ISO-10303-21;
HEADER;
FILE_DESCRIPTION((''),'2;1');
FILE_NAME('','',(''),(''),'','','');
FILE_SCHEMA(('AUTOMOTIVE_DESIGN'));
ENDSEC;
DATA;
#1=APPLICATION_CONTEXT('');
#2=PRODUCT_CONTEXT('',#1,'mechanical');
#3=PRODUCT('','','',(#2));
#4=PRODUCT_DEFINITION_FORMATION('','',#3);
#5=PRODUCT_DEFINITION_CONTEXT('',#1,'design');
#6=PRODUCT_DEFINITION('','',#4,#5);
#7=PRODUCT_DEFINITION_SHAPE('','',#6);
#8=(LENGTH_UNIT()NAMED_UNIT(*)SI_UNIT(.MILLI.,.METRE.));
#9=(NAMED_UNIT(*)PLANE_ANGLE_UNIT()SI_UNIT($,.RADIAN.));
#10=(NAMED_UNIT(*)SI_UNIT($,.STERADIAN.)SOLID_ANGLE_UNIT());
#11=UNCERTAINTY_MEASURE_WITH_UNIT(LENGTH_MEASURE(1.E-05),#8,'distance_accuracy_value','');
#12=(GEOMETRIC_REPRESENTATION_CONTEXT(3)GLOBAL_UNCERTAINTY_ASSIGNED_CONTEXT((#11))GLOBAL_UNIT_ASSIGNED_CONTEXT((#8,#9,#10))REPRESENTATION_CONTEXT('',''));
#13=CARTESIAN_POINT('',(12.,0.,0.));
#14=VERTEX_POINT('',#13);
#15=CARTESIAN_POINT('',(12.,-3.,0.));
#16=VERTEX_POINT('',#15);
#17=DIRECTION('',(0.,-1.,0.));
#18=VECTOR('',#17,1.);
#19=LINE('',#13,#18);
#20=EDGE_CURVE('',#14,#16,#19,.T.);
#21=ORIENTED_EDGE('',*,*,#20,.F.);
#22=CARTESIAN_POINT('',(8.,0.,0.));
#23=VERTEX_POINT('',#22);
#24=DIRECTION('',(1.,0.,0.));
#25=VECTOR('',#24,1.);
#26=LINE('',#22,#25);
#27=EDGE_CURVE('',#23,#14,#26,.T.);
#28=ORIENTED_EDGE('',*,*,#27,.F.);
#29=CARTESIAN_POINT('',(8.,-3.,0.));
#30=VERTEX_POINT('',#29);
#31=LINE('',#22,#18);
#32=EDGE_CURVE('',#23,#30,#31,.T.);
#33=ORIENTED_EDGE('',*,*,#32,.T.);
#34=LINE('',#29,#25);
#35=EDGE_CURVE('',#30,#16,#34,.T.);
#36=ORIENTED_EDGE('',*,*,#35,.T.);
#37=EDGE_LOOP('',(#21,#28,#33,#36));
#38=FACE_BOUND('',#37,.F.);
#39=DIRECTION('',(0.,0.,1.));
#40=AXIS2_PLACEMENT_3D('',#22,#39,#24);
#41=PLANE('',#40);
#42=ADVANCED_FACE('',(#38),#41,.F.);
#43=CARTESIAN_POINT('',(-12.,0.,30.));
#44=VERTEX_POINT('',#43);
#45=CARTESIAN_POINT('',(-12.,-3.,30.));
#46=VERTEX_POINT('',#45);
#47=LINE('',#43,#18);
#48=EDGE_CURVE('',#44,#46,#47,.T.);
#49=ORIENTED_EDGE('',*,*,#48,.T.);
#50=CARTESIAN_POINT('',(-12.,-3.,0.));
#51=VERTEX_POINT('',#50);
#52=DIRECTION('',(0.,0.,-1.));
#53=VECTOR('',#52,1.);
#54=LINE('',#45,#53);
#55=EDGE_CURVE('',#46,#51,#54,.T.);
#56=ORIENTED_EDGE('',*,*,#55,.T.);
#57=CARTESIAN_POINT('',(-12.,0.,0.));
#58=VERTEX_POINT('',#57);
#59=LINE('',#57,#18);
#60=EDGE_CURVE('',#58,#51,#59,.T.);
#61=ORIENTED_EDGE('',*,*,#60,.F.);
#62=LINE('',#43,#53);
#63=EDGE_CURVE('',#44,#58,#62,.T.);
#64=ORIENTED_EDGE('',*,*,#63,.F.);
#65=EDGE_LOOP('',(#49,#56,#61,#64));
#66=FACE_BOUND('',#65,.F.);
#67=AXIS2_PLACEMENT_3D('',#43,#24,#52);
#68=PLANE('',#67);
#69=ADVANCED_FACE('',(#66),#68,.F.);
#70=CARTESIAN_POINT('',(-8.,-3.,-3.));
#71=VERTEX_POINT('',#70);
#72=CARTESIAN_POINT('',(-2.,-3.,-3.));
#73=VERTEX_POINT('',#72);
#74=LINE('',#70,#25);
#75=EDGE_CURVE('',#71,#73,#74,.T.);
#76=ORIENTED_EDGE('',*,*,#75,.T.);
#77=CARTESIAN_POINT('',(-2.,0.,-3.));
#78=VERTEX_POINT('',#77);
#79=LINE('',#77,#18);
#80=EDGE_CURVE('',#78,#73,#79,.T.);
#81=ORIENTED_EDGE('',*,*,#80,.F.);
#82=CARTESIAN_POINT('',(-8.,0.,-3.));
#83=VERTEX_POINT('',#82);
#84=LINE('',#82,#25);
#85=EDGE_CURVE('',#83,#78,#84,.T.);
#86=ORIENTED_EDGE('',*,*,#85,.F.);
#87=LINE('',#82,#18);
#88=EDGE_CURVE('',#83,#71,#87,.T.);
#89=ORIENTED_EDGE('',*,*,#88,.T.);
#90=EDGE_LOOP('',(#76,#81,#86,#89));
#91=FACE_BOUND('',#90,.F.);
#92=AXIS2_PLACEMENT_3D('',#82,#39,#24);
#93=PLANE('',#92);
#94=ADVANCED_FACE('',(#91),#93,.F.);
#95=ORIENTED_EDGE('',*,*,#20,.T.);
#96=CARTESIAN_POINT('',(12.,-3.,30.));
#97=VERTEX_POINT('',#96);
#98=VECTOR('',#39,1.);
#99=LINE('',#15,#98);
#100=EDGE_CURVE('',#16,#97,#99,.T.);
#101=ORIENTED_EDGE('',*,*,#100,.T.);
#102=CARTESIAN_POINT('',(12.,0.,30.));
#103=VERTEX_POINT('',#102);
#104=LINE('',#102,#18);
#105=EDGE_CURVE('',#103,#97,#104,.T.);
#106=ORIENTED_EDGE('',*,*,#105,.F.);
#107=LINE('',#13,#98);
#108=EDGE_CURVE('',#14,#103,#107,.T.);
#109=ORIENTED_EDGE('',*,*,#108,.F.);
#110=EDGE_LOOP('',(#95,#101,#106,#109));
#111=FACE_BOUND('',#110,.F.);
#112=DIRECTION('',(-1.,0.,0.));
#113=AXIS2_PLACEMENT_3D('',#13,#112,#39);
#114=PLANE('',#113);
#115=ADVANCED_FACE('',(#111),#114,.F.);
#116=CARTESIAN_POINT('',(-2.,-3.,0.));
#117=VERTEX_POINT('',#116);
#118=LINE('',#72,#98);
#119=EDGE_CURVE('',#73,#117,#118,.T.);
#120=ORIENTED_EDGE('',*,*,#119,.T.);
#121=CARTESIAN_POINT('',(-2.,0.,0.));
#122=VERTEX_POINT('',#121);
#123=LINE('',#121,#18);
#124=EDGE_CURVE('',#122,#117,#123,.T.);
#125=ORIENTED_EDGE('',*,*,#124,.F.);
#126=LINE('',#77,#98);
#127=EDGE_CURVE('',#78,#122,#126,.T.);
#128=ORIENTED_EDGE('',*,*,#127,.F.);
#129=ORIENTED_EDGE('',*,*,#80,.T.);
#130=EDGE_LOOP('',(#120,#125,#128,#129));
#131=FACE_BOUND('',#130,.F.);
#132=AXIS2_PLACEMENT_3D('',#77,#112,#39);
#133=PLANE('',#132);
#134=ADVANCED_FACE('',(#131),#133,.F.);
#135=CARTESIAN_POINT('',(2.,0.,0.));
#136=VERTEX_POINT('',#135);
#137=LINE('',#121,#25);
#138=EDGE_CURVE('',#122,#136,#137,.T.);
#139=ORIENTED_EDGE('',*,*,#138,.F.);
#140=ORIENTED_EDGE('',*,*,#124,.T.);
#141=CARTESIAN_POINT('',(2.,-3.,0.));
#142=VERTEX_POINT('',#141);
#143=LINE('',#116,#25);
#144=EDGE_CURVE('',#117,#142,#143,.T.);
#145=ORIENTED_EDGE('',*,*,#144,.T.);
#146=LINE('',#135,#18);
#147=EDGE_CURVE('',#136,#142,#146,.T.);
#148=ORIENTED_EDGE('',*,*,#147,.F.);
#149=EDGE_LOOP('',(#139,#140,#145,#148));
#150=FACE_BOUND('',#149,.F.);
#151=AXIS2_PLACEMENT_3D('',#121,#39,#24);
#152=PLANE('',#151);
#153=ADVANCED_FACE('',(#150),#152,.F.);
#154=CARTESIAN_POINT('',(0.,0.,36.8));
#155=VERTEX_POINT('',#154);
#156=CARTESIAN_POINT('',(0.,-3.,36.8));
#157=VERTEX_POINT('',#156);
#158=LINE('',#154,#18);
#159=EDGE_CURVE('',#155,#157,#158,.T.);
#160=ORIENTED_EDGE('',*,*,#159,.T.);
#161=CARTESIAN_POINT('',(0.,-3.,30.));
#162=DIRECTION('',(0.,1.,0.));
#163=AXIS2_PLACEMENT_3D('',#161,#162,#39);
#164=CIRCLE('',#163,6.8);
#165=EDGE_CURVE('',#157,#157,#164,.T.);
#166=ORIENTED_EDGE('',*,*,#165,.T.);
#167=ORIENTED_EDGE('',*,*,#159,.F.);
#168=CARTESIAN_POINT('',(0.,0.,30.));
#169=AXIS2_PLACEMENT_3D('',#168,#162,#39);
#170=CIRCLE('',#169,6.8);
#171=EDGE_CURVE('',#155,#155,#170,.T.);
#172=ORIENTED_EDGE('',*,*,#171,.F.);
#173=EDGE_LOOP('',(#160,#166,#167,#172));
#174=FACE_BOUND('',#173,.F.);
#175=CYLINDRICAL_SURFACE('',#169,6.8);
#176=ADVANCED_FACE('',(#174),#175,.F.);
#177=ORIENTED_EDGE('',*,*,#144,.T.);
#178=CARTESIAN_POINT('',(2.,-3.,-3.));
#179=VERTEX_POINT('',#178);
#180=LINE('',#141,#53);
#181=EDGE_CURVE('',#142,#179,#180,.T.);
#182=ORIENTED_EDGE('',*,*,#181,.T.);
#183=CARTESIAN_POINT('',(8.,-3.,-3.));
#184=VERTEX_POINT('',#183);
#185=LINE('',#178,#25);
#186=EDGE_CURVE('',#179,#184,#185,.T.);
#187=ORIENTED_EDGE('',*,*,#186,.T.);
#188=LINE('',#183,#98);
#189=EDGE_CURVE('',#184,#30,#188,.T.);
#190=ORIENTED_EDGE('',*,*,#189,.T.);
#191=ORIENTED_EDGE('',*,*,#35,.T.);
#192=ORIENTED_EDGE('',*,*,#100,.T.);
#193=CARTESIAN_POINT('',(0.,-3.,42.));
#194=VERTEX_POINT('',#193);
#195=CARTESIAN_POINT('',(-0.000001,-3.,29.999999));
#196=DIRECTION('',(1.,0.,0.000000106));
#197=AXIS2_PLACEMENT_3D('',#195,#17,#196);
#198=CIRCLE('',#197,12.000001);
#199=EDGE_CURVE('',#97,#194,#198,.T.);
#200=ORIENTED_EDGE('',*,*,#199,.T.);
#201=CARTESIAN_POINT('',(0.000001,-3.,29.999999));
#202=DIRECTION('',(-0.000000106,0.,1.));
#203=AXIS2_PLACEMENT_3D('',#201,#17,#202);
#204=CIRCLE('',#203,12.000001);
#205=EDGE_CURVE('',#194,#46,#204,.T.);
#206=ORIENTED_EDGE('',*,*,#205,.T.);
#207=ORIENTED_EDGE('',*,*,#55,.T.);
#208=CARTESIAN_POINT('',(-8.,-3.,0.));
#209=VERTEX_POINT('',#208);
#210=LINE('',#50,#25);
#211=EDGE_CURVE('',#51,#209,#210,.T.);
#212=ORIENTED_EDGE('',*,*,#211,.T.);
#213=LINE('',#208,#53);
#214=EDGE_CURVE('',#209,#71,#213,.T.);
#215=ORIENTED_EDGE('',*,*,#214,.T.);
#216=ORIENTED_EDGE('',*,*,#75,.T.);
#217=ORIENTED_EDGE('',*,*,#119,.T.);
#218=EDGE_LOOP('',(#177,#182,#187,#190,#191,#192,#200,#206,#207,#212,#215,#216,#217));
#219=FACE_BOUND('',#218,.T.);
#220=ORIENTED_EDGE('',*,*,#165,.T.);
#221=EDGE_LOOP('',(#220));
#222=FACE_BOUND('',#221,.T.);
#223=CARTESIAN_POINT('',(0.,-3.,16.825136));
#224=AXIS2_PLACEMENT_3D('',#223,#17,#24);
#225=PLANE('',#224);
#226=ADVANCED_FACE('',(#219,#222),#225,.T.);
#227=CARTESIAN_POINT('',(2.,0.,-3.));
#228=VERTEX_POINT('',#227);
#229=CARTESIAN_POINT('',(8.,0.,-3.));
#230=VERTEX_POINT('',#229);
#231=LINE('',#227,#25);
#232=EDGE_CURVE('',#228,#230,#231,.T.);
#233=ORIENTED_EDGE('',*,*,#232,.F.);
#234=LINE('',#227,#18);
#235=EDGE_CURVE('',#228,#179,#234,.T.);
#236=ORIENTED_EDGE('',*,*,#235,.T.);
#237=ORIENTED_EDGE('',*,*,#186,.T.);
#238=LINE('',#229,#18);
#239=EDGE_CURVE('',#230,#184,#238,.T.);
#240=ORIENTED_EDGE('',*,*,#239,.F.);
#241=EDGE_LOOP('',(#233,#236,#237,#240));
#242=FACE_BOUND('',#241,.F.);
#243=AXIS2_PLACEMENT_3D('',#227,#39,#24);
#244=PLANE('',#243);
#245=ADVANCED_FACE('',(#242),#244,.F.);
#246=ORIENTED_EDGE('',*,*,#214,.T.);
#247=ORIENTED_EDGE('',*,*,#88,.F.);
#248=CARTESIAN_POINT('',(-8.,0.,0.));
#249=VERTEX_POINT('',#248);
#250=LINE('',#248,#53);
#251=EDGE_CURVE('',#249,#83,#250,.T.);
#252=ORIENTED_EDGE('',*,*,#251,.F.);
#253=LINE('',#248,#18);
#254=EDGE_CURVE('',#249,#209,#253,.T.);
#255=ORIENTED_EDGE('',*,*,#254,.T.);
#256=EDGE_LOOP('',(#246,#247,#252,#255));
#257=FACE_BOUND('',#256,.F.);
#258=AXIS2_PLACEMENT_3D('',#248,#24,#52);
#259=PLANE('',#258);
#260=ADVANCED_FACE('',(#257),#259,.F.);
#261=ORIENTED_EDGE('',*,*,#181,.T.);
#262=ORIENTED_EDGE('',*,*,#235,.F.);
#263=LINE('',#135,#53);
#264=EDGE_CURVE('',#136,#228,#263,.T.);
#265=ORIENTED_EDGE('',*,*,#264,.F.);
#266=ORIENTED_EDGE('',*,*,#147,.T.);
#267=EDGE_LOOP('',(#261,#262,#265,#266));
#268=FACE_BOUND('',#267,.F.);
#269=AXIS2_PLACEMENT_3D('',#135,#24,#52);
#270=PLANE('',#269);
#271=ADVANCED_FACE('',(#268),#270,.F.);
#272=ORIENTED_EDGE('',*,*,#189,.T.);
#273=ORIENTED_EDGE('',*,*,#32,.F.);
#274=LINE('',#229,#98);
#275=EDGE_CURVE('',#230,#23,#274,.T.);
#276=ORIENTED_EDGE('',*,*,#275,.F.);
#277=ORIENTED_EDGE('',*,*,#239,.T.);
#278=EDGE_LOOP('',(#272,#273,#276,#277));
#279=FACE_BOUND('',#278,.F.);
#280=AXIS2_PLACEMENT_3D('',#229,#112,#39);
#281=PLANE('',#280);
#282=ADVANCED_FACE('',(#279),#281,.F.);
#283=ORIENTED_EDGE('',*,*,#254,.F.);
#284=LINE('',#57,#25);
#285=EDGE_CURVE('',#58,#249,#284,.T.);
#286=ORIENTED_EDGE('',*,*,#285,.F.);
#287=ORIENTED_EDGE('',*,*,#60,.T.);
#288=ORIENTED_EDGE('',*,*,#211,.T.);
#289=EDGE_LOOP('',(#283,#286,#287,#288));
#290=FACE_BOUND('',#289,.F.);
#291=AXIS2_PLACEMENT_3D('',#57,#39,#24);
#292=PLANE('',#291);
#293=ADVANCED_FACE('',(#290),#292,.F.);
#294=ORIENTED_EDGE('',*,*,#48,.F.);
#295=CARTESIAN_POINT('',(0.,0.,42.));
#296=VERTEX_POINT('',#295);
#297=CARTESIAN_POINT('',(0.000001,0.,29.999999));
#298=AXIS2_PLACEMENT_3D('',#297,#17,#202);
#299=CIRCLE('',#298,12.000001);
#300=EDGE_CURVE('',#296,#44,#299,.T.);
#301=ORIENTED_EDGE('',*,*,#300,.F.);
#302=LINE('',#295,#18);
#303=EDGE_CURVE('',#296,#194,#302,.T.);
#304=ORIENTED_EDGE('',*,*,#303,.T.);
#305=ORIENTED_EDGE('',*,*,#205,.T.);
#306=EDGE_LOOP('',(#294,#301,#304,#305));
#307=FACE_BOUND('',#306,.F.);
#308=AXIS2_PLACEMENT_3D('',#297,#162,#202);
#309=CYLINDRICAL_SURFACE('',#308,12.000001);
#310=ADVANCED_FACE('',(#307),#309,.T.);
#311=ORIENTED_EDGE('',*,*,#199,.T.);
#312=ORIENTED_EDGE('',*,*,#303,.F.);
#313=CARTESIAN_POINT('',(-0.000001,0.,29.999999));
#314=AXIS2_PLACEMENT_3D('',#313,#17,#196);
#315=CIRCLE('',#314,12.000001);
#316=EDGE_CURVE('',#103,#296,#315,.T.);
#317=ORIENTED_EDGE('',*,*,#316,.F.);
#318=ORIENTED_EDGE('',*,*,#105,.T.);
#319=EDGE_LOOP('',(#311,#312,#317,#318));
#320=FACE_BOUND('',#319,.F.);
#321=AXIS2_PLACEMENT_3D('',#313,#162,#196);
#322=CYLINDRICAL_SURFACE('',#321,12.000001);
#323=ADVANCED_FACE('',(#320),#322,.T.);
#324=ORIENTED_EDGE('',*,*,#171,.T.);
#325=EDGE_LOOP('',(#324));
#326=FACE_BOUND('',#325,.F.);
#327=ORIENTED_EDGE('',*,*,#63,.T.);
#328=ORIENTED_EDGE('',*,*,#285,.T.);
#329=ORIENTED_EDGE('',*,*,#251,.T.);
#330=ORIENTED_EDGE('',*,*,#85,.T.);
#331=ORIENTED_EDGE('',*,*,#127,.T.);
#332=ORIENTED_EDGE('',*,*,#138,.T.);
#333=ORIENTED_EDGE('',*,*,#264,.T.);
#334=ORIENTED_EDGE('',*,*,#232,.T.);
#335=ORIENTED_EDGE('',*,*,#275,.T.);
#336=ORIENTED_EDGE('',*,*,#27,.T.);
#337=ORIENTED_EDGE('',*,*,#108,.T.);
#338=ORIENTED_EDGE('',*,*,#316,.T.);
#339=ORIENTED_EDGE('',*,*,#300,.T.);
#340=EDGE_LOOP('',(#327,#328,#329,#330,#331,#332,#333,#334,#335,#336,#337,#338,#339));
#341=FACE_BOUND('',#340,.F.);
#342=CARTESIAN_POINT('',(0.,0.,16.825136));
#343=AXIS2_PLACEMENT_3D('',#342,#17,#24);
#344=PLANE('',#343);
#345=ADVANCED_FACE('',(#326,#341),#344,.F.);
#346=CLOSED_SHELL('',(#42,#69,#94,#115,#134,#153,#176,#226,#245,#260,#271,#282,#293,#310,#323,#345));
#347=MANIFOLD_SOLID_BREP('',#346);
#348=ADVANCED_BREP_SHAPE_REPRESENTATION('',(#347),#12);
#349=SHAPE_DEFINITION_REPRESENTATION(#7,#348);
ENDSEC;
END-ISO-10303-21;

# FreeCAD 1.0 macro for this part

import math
import FreeCAD as App
import Part
import Sketcher
from FreeCAD import Vector
Q = App.Units.Quantity

doc = App.newDocument("Part")
body = doc.addObject("PartDesign::Body", "Body")

# Sketch on XZ plane
sketch1 = body.newObject("Sketcher::SketchObject", "Sketch")
sketch1.AttachmentSupport = (doc.getObject("XZ_Plane"), [""])
sketch1.MapMode = "FlatFace"
sketch1.addGeometry([
    Part.LineSegment(Vector(-2, 0, 0), Vector(2, 0, 0)),  # 0
    Part.LineSegment(Vector(2, 0, 0), Vector(2, -3, 0)),  # 1
    Part.LineSegment(Vector(2, -3, 0), Vector(8, -3, 0)),  # 2
    Part.LineSegment(Vector(8, -3, 0), Vector(8, 0, 0)),  # 3
    Part.LineSegment(Vector(8, 0, 0), Vector(12, 0, 0)),  # 4
    Part.LineSegment(Vector(12, 0, 0), Vector(12, 30, 0)),  # 5
    Part.ArcOfCircle(Part.Circle(Vector(0, 30, 0), Vector(0, 0, 1), 12), math.radians(0), math.radians(90)),  # 6
    Part.ArcOfCircle(Part.Circle(Vector(0, 30, 0), Vector(0, 0, 1), 12), math.radians(90), math.radians(180)),  # 7
    Part.LineSegment(Vector(-12, 30, 0), Vector(-12, 0, 0)),  # 8
    Part.LineSegment(Vector(-12, 0, 0), Vector(-8, 0, 0)),  # 9
    Part.LineSegment(Vector(-8, 0, 0), Vector(-8, -3, 0)),  # 10
    Part.LineSegment(Vector(-8, -3, 0), Vector(-2, -3, 0)),  # 11
    Part.LineSegment(Vector(-2, -3, 0), Vector(-2, 0, 0)),  # 12
    Part.Circle(Vector(0, 30, 0), Vector(0, 0, 1), 6.8),  # 13
], False)
sketch1.addConstraint([
    Sketcher.Constraint("Coincident", 0, 2, 1, 1),
    Sketcher.Constraint("Coincident", 1, 2, 2, 1),
    Sketcher.Constraint("Coincident", 2, 2, 3, 1),
    Sketcher.Constraint("Coincident", 3, 2, 4, 1),
    Sketcher.Constraint("Coincident", 4, 2, 5, 1),
    Sketcher.Constraint("Tangent", 5, 2, 6, 1),
    Sketcher.Constraint("Tangent", 6, 2, 7, 1),
    Sketcher.Constraint("Tangent", 7, 2, 8, 1),
    Sketcher.Constraint("Coincident", 8, 2, 9, 1),
    Sketcher.Constraint("Coincident", 9, 2, 10, 1),
    Sketcher.Constraint("Coincident", 10, 2, 11, 1),
    Sketcher.Constraint("Coincident", 11, 2, 12, 1),
    Sketcher.Constraint("Coincident", 12, 2, 0, 1),
    Sketcher.Constraint("Horizontal", 0),
    Sketcher.Constraint("Vertical", 1),
    Sketcher.Constraint("Horizontal", 2),
    Sketcher.Constraint("Vertical", 3),
    Sketcher.Constraint("Horizontal", 4),
    Sketcher.Constraint("Vertical", 5),
    Sketcher.Constraint("Vertical", 8),
    Sketcher.Constraint("Horizontal", 9),
    Sketcher.Constraint("Vertical", 10),
    Sketcher.Constraint("Horizontal", 11),
    Sketcher.Constraint("Vertical", 12),
    Sketcher.Constraint("Coincident", 13, 3, 6, 3),
    Sketcher.Constraint("Equal", 6, 7),
    Sketcher.Constraint("Symmetric", 4, 2, 8, 2, -1, 1),
    Sketcher.Constraint("Symmetric", 0, 2, 12, 2, -1, 1),
    Sketcher.Constraint("Symmetric", 3, 2, 9, 2, -2),
    Sketcher.Constraint("PointOnObject", 6, 2, -2),
    Sketcher.Constraint("Horizontal", 2, 2, 10, 2),
    Sketcher.Constraint("Equal", 0, 4),
    Sketcher.Constraint("Radius", 6, Q("12.000001 mm")),
    Sketcher.Constraint("Diameter", 13, Q("13.6 mm")),
    Sketcher.Constraint("DistanceX", 0, 1, 0, 2, Q("4 mm")),
    Sketcher.Constraint("DistanceY", 1, 2, 1, 1, Q("3 mm")),
    Sketcher.Constraint("DistanceY", 5, 1, 5, 2, Q("30 mm")),
])
pad1 = body.newObject("PartDesign::Pad", "Pad")
pad1.Profile = sketch1
pad1.Length = 3

doc.recompute()
